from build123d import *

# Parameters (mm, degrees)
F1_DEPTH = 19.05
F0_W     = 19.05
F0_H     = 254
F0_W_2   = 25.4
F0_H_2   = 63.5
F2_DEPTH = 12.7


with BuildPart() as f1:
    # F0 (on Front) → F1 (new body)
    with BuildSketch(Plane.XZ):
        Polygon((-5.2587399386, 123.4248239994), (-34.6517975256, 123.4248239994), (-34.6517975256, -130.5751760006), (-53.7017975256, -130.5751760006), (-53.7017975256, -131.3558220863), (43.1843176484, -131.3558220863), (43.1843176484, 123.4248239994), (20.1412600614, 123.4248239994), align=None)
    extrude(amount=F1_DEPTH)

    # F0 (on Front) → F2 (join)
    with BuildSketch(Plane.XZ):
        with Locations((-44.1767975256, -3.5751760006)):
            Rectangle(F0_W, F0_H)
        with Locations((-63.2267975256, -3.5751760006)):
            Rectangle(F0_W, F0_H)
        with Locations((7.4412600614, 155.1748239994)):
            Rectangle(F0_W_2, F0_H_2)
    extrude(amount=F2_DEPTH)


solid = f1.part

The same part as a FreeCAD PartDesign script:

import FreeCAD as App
import Part
import Sketcher

V = App.Vector
Q = App.Units.Quantity

doc = App.newDocument("Part")
body = doc.addObject("PartDesign::Body", "Body")

sketch1 = doc.addObject("Sketcher::SketchObject", "Sketch")
body.addObject(sketch1)
sketch1.AttachmentSupport = (doc.XZ_Plane, [""])
sketch1.MapMode = "FlatFace"
sketch1.addGeometry([
    Part.LineSegment(V(-34.7, 123.4, 0), V(-34.7, -130.6, 0)),
    Part.LineSegment(V(-34.7, -130.6, 0), V(-53.7, -130.6, 0)),
    Part.LineSegment(V(-53.7, -130.6, 0), V(-53.7, -131.4, 0)),
    Part.LineSegment(V(-53.7, -131.4, 0), V(43.2, -131.4, 0)),
    Part.LineSegment(V(43.2, -131.4, 0), V(43.2, 123.4, 0)),
    Part.LineSegment(V(43.2, 123.4, 0), V(-34.7, 123.4, 0)),
], False)
sketch1.addConstraint([
    Sketcher.Constraint("Coincident", 0, 2, 1, 1),
    Sketcher.Constraint("Coincident", 1, 2, 2, 1),
    Sketcher.Constraint("Coincident", 2, 2, 3, 1),
    Sketcher.Constraint("Coincident", 3, 2, 4, 1),
    Sketcher.Constraint("Coincident", 4, 2, 5, 1),
    Sketcher.Constraint("Coincident", 5, 2, 0, 1),
    Sketcher.Constraint("Vertical", 0),
    Sketcher.Constraint("Horizontal", 1),
    Sketcher.Constraint("Vertical", 2),
    Sketcher.Constraint("Horizontal", 3),
    Sketcher.Constraint("Vertical", 4),
    Sketcher.Constraint("Horizontal", 5),
    Sketcher.Constraint("DistanceY", 0, 2, 0, 1, Q("10 in")),
    Sketcher.Constraint("DistanceX", 1, 2, 1, 1, Q("0.75 in")),
    Sketcher.Constraint("DistanceX", 3, 1, 3, 2, 96.886115),
    Sketcher.Constraint("DistanceY", 2, 2, 2, 1, 0.780646),
    Sketcher.Constraint("DistanceX", 0, 2, -1, 1, 34.651798),
    Sketcher.Constraint("DistanceY", 0, 2, -1, 1, 130.575176),
])
pad1 = doc.addObject("PartDesign::Pad", "Pad")
body.addObject(pad1)
pad1.Profile = sketch1
pad1.Length = Q("0.75 in")

sketch2 = doc.addObject("Sketcher::SketchObject", "Sketch001")
body.addObject(sketch2)
sketch2.AttachmentSupport = (doc.XZ_Plane, [""])
sketch2.MapMode = "FlatFace"
sketch2.addGeometry([
    Part.LineSegment(V(-35, -131, 0), V(-35, 123, 0)),
    Part.LineSegment(V(-35, 123, 0), V(-73, 123, 0)),
    Part.LineSegment(V(-73, 123, 0), V(-73, -131, 0)),
    Part.LineSegment(V(-73, -131, 0), V(-35, -131, 0)),
    Part.LineSegment(V(-5, 187, 0), V(-5, 123, 0)),
    Part.LineSegment(V(-5, 123, 0), V(20, 123, 0)),
    Part.LineSegment(V(20, 123, 0), V(20, 187, 0)),
    Part.LineSegment(V(20, 187, 0), V(-5, 187, 0)),
], False)
sketch2.addConstraint([
    Sketcher.Constraint("Coincident", 0, 2, 1, 1),
    Sketcher.Constraint("Coincident", 1, 2, 2, 1),
    Sketcher.Constraint("Coincident", 2, 2, 3, 1),
    Sketcher.Constraint("Coincident", 3, 2, 0, 1),
    Sketcher.Constraint("Coincident", 4, 2, 5, 1),
    Sketcher.Constraint("Coincident", 5, 2, 6, 1),
    Sketcher.Constraint("Coincident", 6, 2, 7, 1),
    Sketcher.Constraint("Coincident", 7, 2, 4, 1),
    Sketcher.Constraint("Vertical", 0),
    Sketcher.Constraint("Horizontal", 1),
    Sketcher.Constraint("Vertical", 2),
    Sketcher.Constraint("Horizontal", 3),
    Sketcher.Constraint("Vertical", 4),
    Sketcher.Constraint("Horizontal", 5),
    Sketcher.Constraint("Vertical", 6),
    Sketcher.Constraint("Horizontal", 7),
    Sketcher.Constraint("Horizontal", 1, 2, 4, 2),
    Sketcher.Constraint("DistanceX", 5, 1, 5, 2, Q("1 in")),
    Sketcher.Constraint("DistanceY", 0, 1, 0, 2, Q("10 in")),
    Sketcher.Constraint("DistanceX", 1, 2, 1, 1, Q("1.5 in")),
    Sketcher.Constraint("DistanceY", 4, 2, 4, 1, Q("2.5 in")),
    Sketcher.Constraint("DistanceX", 4, 2, -1, 1, 5.25874),
    Sketcher.Constraint("DistanceX", 0, 2, -1, 1, 34.651798),
    Sketcher.Constraint("DistanceY", -1, 1, 0, 2, 123.424824),
])
pad2 = doc.addObject("PartDesign::Pad", "Pad001")
body.addObject(pad2)
pad2.Profile = sketch2
pad2.Length = Q("0.5 in")

doc.recompute()
